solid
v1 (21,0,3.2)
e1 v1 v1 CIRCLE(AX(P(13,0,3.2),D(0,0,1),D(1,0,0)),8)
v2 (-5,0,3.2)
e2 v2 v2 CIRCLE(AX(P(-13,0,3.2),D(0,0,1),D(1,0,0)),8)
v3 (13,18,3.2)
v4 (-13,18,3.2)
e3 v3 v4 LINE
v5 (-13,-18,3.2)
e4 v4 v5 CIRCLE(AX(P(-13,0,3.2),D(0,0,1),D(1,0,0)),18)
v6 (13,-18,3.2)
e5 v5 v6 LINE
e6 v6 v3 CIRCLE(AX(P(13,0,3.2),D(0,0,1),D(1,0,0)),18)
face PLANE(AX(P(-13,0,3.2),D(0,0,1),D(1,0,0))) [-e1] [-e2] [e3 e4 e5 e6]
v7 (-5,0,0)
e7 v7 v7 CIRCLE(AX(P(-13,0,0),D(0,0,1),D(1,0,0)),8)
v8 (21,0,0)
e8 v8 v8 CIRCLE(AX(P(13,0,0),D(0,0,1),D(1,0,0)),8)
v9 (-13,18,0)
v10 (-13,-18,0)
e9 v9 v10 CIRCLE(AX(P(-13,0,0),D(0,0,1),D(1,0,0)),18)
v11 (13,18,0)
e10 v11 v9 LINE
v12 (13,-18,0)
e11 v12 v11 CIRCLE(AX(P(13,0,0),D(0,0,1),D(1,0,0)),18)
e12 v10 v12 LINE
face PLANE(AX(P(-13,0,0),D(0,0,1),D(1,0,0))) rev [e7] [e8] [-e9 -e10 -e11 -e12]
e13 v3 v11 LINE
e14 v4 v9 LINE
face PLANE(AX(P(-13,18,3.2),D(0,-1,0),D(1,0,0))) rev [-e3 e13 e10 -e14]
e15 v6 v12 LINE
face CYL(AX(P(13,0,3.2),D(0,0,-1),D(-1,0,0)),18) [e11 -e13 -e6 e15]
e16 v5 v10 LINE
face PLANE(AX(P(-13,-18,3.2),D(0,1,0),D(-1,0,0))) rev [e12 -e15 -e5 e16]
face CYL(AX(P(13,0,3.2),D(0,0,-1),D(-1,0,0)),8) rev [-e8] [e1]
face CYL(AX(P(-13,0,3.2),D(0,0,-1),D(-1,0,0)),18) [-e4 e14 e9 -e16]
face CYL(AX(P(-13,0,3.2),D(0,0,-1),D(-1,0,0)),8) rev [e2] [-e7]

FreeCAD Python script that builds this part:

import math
import FreeCAD as App
import Part
import Sketcher

V = App.Vector

doc = App.newDocument("Part")
body = doc.addObject("PartDesign::Body", "Body")

# Sketch on XY plane
sketch1 = body.newObject("Sketcher::SketchObject", "Sketch")
sketch1.AttachmentSupport = (doc.getObject("XY_Plane"), [""])
sketch1.MapMode = "FlatFace"
sketch1.addGeometry([
    Part.LineSegment(V(13, 18, 0), V(-13, 18, 0)),  # 0
    Part.ArcOfCircle(Part.Circle(V(-13, 0, 0), V(0, 0, 1), 18), math.radians(90), math.radians(270)),  # 1
    Part.LineSegment(V(-13, -18, 0), V(13, -18, 0)),  # 2
    Part.ArcOfCircle(Part.Circle(V(13, 0, 0), V(0, 0, 1), 18), math.radians(-90), math.radians(90)),  # 3
    Part.Circle(V(13, 0, 0), V(0, 0, 1), 8),  # 4
    Part.Circle(V(-13, 0, 0), V(0, 0, 1), 8),  # 5
], False)
sketch1.addConstraint([
    Sketcher.Constraint("Tangent", 0, 2, 1, 1),
    Sketcher.Constraint("Tangent", 1, 2, 2, 1),
    Sketcher.Constraint("Tangent", 2, 2, 3, 1),
    Sketcher.Constraint("Tangent", 3, 2, 0, 1),
    Sketcher.Constraint("Horizontal", 0),
    Sketcher.Constraint("Horizontal", 2),
    Sketcher.Constraint("Coincident", 4, 3, 3, 3),
    Sketcher.Constraint("Coincident", 5, 3, 1, 3),
    Sketcher.Constraint("Equal", 4, 5),
    Sketcher.Constraint("Symmetric", 1, 3, 3, 3, -1, 1),
    Sketcher.Constraint("Diameter", 4, 16.0),
    Sketcher.Constraint("Radius", 1, 18.0),
    Sketcher.Constraint("DistanceX", 0, 2, 0, 1, 26.0),
])
pad1 = body.newObject("PartDesign::Pad", "Pad")
pad1.Profile = sketch1
pad1.Length = 3.2

doc.recompute()
